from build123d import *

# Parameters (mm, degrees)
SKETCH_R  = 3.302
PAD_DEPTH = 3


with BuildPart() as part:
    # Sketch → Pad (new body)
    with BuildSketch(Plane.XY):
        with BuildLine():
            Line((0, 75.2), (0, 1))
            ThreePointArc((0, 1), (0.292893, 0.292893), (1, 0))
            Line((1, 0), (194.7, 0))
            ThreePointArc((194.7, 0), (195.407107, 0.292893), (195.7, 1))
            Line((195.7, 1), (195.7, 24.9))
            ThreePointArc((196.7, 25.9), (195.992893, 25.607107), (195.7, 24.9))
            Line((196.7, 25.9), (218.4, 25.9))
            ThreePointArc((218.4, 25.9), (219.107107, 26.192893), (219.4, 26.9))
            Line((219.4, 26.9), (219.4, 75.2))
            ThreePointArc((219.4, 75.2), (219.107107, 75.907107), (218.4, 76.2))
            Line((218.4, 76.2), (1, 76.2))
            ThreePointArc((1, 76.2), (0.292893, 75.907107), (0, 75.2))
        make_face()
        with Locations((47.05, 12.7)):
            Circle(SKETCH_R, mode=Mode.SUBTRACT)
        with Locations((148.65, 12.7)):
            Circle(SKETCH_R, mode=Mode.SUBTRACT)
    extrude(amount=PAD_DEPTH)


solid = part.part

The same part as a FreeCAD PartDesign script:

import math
import FreeCAD as App
import Part
import Sketcher

V = App.Vector
Q = App.Units.Quantity

doc = App.newDocument("Part")
body = doc.addObject("PartDesign::Body", "Body")

# Sketch on XY plane
sketch1 = body.newObject("Sketcher::SketchObject", "Sketch")
sketch1.AttachmentSupport = (doc.getObject("XY_Plane"), [""])
sketch1.MapMode = "FlatFace"
sketch1.addGeometry(Part.LineSegment(V(0, 75.2, 0), V(0, 1, 0)), False)
sketch1.addGeometry(Part.ArcOfCircle(Part.Circle(V(1, 1, 0), V(0, 0, 1), 1), math.radians(180), math.radians(270)), False)
sketch1.addGeometry(Part.LineSegment(V(1, 0, 0), V(194.7, 0, 0)), False)
sketch1.addGeometry(Part.ArcOfCircle(Part.Circle(V(194.7, 1, 0), V(0, 0, 1), 1), math.radians(-90), math.radians(0)), False)
sketch1.addGeometry(Part.LineSegment(V(195.7, 1, 0), V(195.7, 24.9, 0)), False)
sketch1.addGeometry(Part.ArcOfCircle(Part.Circle(V(196.7, 24.9, 0), V(0, 0, 1), 1), math.radians(90), math.radians(180)), False)
sketch1.addGeometry(Part.LineSegment(V(196.7, 25.9, 0), V(218.4, 25.9, 0)), False)
sketch1.addGeometry(Part.ArcOfCircle(Part.Circle(V(218.4, 26.9, 0), V(0, 0, 1), 1), math.radians(-90), math.radians(0)), False)
sketch1.addGeometry(Part.LineSegment(V(219.4, 26.9, 0), V(219.4, 75.2, 0)), False)
sketch1.addGeometry(Part.ArcOfCircle(Part.Circle(V(218.4, 75.2, 0), V(0, 0, 1), 1), math.radians(0), math.radians(90)), False)
sketch1.addGeometry(Part.LineSegment(V(218.4, 76.2, 0), V(1, 76.2, 0)), False)
sketch1.addGeometry(Part.ArcOfCircle(Part.Circle(V(1, 75.2, 0), V(0, 0, 1), 1), math.radians(90), math.radians(180)), False)
sketch1.addGeometry(Part.Circle(V(47, 12.7, 0), V(0, 0, 1), 3.3), False)
sketch1.addGeometry(Part.Circle(V(148.7, 12.7, 0), V(0, 0, 1), 3.3), False)
sketch1.addConstraint(Sketcher.Constraint("Tangent", 0, 2, 1, 1))
sketch1.addConstraint(Sketcher.Constraint("Tangent", 1, 2, 2, 1))
sketch1.addConstraint(Sketcher.Constraint("Tangent", 2, 2, 3, 1))
sketch1.addConstraint(Sketcher.Constraint("Tangent", 3, 2, 4, 1))
sketch1.addConstraint(Sketcher.Constraint("Tangent", 4, 2, 5, 2))
sketch1.addConstraint(Sketcher.Constraint("Tangent", 5, 1, 6, 1))
sketch1.addConstraint(Sketcher.Constraint("Tangent", 6, 2, 7, 1))
sketch1.addConstraint(Sketcher.Constraint("Tangent", 7, 2, 8, 1))
sketch1.addConstraint(Sketcher.Constraint("Tangent", 8, 2, 9, 1))
sketch1.addConstraint(Sketcher.Constraint("Tangent", 9, 2, 10, 1))
sketch1.addConstraint(Sketcher.Constraint("Tangent", 10, 2, 11, 1))
sketch1.addConstraint(Sketcher.Constraint("Tangent", 11, 2, 0, 1))
sketch1.addConstraint(Sketcher.Constraint("Vertical", 0))
sketch1.addConstraint(Sketcher.Constraint("Horizontal", 2))
sketch1.addConstraint(Sketcher.Constraint("Vertical", 4))
sketch1.addConstraint(Sketcher.Constraint("Horizontal", 6))
sketch1.addConstraint(Sketcher.Constraint("Vertical", 8))
sketch1.addConstraint(Sketcher.Constraint("Horizontal", 10))
sketch1.addConstraint(Sketcher.Constraint("Equal", 1, 3))
sketch1.addConstraint(Sketcher.Constraint("Equal", 3, 5))
sketch1.addConstraint(Sketcher.Constraint("Equal", 5, 7))
sketch1.addConstraint(Sketcher.Constraint("Equal", 7, 9))
sketch1.addConstraint(Sketcher.Constraint("Equal", 9, 11))
sketch1.addConstraint(Sketcher.Constraint("Equal", 12, 13))
sketch1.addConstraint(Sketcher.Constraint("PointOnObject", 0, 2, -2))
sketch1.addConstraint(Sketcher.Constraint("PointOnObject", 1, 2, -1))
sketch1.addConstraint(Sketcher.Constraint("Horizontal", 12, 3, 13, 3))
sketch1.addConstraint(Sketcher.Constraint("Radius", 1, Q("0.999999 mm")))
sketch1.addConstraint(Sketcher.Constraint("Diameter", 12, Q("6.604 mm")))
sketch1.addConstraint(Sketcher.Constraint("DistanceX", 2, 1, 2, 2, Q("193.7 mm")))
sketch1.addConstraint(Sketcher.Constraint("DistanceX", 6, 1, 6, 2, Q("21.7 mm")))
sketch1.addConstraint(Sketcher.Constraint("DistanceY", 0, 2, 0, 1, Q("74.2 mm")))
sketch1.addConstraint(Sketcher.Constraint("DistanceY", 4, 1, 4, 2, Q("23.9 mm")))
sketch1.addConstraint(Sketcher.Constraint("DistanceY", -1, 1, 12, 3, Q("12.7 mm")))
sketch1.addConstraint(Sketcher.Constraint("DistanceX", 12, 3, 13, 3, Q("101.6 mm")))
sketch1.addConstraint(Sketcher.Constraint("DistanceX", -1, 1, 12, 3, Q("47.05 mm")))
pad1 = body.newObject("PartDesign::Pad", "Pad")
pad1.Profile = sketch1
pad1.Length = 3

doc.recompute()
